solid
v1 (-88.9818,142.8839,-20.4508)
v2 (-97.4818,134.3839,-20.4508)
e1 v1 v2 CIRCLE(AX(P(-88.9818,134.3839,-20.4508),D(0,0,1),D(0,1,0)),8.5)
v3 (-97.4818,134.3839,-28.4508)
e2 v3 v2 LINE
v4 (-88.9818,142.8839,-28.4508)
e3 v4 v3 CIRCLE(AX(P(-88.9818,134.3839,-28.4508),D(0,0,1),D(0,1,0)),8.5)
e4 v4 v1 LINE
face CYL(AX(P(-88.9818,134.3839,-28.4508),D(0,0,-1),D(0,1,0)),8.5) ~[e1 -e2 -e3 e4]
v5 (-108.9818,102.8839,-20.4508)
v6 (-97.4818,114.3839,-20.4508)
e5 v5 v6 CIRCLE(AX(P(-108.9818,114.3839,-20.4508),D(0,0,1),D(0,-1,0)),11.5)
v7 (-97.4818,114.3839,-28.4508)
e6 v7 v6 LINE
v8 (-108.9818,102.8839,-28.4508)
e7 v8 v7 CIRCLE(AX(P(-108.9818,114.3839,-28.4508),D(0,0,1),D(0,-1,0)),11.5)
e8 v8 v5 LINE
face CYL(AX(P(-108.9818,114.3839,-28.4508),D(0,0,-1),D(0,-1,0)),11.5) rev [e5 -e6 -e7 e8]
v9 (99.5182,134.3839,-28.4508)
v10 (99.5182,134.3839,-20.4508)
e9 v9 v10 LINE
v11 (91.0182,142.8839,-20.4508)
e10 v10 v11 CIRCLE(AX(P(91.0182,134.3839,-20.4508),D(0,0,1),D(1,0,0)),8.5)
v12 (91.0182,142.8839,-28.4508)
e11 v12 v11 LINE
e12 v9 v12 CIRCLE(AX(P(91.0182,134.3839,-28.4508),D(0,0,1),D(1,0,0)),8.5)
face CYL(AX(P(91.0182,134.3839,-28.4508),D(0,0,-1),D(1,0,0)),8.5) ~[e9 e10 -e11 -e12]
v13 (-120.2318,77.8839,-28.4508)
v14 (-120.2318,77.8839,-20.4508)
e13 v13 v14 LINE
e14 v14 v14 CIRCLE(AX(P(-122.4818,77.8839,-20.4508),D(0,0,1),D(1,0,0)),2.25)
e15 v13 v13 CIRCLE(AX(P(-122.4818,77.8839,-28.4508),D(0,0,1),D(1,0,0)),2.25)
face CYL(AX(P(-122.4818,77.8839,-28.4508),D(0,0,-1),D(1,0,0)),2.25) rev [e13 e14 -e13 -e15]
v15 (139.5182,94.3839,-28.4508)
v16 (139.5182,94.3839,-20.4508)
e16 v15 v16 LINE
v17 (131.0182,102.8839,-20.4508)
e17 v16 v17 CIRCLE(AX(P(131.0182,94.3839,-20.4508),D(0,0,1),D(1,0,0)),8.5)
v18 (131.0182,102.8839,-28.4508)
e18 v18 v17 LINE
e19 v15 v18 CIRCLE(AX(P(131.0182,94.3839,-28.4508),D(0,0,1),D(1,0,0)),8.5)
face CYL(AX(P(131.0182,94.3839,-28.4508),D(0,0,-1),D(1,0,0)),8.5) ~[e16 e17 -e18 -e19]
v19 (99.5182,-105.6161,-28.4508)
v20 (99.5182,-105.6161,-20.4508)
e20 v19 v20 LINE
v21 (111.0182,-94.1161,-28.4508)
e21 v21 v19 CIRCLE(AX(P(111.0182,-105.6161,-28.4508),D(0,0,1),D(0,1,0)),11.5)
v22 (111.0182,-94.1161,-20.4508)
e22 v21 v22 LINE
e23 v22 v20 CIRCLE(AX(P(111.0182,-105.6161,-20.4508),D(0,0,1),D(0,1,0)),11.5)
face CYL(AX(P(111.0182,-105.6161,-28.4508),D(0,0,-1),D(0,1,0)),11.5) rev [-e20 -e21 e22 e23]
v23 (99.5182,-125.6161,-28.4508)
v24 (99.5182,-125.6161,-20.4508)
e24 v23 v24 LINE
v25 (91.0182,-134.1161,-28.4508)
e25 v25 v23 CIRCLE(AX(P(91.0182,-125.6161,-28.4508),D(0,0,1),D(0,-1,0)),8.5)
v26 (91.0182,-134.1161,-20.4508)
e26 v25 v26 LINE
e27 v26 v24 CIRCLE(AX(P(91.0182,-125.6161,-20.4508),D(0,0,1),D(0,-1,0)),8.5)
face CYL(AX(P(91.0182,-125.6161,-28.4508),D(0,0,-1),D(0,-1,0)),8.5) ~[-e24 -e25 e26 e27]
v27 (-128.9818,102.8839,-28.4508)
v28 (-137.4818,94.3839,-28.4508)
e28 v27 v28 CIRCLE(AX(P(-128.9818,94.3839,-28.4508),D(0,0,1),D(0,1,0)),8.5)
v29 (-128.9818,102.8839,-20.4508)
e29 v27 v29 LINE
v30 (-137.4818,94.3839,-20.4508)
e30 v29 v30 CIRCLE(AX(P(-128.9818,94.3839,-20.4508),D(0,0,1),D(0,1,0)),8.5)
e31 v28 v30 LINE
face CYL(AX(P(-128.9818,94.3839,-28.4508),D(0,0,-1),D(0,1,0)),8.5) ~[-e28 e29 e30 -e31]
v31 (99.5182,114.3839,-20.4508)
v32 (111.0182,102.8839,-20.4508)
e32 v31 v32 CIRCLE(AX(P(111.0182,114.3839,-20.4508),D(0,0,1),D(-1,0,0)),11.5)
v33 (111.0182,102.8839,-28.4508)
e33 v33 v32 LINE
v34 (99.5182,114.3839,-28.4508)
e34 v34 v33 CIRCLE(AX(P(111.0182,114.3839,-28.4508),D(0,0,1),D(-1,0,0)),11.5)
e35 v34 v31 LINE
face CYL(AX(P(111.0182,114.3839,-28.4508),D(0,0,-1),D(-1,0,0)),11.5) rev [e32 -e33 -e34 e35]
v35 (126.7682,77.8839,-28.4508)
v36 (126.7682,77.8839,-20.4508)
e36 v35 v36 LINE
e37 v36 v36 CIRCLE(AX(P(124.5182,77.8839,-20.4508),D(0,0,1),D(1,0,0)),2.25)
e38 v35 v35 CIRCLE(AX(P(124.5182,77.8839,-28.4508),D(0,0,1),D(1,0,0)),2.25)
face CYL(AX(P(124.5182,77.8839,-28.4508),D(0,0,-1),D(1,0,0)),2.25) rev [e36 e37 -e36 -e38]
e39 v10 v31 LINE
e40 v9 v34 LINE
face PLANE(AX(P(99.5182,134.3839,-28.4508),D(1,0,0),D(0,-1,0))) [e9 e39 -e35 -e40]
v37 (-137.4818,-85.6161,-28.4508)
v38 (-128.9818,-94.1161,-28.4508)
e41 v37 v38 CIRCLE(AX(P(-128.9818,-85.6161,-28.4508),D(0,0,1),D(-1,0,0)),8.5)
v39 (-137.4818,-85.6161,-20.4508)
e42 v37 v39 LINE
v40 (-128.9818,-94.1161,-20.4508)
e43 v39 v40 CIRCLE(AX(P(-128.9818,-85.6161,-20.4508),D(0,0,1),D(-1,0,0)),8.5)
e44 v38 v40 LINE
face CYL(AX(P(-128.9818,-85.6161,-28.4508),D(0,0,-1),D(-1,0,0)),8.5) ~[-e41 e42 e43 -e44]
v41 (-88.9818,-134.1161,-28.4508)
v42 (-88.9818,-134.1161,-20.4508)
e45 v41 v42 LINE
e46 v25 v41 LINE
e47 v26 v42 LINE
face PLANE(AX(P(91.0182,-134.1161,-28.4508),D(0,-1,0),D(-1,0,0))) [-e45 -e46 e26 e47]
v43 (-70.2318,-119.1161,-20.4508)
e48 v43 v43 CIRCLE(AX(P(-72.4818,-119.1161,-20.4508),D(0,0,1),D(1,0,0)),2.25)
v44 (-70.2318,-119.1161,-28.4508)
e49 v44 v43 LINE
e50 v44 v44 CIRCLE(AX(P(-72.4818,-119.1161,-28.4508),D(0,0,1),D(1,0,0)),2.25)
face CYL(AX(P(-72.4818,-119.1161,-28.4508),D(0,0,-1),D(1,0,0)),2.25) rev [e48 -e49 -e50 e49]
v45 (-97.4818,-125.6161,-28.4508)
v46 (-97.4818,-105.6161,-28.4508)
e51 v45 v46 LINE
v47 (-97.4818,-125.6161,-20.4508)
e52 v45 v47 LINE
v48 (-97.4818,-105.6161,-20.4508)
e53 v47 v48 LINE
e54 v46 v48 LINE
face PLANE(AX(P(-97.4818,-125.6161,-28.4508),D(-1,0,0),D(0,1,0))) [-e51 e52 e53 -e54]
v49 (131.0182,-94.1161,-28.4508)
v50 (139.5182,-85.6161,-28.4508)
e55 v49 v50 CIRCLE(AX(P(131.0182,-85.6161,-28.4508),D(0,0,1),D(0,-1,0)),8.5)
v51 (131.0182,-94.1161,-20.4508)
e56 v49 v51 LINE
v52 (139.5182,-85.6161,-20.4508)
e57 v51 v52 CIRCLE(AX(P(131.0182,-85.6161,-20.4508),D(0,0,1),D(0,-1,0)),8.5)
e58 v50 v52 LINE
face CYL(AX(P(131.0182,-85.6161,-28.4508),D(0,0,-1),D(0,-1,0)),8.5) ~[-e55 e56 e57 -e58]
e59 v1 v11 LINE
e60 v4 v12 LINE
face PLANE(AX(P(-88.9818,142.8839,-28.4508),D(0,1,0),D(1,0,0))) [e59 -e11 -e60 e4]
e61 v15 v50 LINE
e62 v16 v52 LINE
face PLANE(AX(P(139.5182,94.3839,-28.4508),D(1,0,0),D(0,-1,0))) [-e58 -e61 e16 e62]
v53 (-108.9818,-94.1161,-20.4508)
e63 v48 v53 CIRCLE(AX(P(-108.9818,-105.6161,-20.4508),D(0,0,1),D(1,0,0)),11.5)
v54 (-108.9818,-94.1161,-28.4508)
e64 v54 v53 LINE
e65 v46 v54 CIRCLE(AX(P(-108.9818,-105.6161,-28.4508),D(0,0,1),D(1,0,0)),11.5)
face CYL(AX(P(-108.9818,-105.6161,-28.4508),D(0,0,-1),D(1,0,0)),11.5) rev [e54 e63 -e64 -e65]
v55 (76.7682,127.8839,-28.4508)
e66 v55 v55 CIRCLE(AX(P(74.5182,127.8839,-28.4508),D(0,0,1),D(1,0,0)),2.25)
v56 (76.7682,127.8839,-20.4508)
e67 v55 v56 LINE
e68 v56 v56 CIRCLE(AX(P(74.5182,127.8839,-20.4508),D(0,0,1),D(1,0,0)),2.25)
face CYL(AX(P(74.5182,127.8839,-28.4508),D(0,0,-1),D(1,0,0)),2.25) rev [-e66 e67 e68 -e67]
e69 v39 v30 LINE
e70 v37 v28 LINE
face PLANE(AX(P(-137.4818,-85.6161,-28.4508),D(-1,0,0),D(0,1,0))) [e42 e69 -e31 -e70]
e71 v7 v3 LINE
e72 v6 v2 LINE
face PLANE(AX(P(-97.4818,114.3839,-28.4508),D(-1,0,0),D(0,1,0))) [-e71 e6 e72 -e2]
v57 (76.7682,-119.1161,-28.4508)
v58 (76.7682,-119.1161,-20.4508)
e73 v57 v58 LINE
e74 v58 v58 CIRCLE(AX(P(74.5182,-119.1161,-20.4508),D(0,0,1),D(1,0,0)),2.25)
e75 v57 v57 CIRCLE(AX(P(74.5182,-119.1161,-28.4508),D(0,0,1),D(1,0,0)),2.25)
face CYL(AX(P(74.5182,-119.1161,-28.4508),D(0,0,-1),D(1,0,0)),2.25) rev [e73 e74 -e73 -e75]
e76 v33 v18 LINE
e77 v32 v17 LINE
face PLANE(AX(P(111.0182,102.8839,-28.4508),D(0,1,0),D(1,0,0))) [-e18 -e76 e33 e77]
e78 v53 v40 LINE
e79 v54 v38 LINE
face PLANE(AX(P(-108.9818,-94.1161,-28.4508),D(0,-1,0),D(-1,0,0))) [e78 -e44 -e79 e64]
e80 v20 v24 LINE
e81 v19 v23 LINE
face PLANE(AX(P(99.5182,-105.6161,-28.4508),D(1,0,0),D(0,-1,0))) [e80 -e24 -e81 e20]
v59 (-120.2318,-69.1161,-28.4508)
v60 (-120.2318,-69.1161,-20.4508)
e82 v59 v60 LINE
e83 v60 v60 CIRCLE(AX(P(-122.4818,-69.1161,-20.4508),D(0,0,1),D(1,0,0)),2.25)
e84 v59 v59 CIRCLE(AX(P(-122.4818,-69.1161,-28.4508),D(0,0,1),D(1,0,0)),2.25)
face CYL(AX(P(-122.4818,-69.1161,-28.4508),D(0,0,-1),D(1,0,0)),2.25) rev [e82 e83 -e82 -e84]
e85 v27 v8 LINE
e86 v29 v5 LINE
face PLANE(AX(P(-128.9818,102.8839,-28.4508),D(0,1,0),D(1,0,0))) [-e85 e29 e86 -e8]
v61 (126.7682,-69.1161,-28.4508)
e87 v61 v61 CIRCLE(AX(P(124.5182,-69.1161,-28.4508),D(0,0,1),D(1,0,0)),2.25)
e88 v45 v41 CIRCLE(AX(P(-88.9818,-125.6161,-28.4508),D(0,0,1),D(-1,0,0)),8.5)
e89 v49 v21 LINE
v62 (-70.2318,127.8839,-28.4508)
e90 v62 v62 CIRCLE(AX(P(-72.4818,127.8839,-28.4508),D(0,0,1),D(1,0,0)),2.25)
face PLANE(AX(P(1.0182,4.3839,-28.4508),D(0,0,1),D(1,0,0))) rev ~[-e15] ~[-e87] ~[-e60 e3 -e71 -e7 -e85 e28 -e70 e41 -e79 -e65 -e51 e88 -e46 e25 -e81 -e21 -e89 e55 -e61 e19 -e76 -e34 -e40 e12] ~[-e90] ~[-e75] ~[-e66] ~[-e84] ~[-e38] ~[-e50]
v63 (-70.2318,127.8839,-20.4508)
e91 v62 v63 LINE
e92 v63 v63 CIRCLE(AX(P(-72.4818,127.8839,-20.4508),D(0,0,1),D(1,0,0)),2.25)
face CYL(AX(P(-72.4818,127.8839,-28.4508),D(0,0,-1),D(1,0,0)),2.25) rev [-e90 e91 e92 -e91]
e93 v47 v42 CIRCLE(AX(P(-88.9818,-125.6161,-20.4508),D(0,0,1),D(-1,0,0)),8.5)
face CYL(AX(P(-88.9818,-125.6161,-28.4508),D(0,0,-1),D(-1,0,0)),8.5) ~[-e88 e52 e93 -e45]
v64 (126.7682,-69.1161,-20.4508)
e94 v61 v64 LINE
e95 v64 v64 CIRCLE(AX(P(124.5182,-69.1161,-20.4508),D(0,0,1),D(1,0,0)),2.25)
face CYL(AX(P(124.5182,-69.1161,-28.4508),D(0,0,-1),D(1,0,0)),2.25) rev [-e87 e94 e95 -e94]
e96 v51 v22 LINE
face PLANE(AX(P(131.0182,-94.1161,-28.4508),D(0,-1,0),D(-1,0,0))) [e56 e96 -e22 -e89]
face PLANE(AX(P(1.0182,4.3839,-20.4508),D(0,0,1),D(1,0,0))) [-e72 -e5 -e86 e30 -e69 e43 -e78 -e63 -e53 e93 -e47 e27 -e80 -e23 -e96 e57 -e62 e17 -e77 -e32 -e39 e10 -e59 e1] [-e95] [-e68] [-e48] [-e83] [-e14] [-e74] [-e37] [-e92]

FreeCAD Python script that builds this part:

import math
import FreeCAD as App
import Part
import Sketcher

V = App.Vector
Q = App.Units.Quantity

doc = App.newDocument("Part")
body = doc.addObject("PartDesign::Body", "Body")

# Sketch on XY plane
sketch1 = doc.addObject("Sketcher::SketchObject", "Sketch")
body.addObject(sketch1)
sketch1.AttachmentSupport = (doc.XY_Plane, [""])
sketch1.MapMode = "FlatFace"
sketch1.AttachmentOffset = App.Placement(V(0, 0, -28.4508), App.Rotation())
sketch1.addGeometry(Part.LineSegment(V(99.5, 114.4, 0), V(99.5, 134.4, 0)), False)
sketch1.addGeometry(Part.ArcOfCircle(Part.Circle(V(91, 134.4, 0), V(0, 0, 1), 8.5), math.radians(0), math.radians(90)), False)
sketch1.addGeometry(Part.LineSegment(V(91, 142.9, 0), V(-89, 142.9, 0)), False)
sketch1.addGeometry(Part.ArcOfCircle(Part.Circle(V(-89, 134.4, 0), V(0, 0, 1), 8.5), math.radians(90), math.radians(180)), False)
sketch1.addGeometry(Part.LineSegment(V(-97.5, 134.4, 0), V(-97.5, 114.4, 0)), False)
sketch1.addGeometry(Part.ArcOfCircle(Part.Circle(V(-109, 114.4, 0), V(0, 0, 1), 11.5), math.radians(-90), math.radians(0)), False)
sketch1.addGeometry(Part.LineSegment(V(-109, 102.9, 0), V(-129, 102.9, 0)), False)
sketch1.addGeometry(Part.ArcOfCircle(Part.Circle(V(-129, 94.4, 0), V(0, 0, 1), 8.5), math.radians(90), math.radians(180)), False)
sketch1.addGeometry(Part.LineSegment(V(-137.5, 94.4, 0), V(-137.5, -85.6, 0)), False)
sketch1.addGeometry(Part.ArcOfCircle(Part.Circle(V(-129, -85.6, 0), V(0, 0, 1), 8.5), math.radians(180), math.radians(270)), False)
sketch1.addGeometry(Part.LineSegment(V(-129, -94.1, 0), V(-109, -94.1, 0)), False)
sketch1.addGeometry(Part.ArcOfCircle(Part.Circle(V(-109, -105.6, 0), V(0, 0, 1), 11.5), math.radians(0), math.radians(90)), False)
sketch1.addGeometry(Part.LineSegment(V(-97.5, -105.6, 0), V(-97.5, -125.6, 0)), False)
sketch1.addGeometry(Part.ArcOfCircle(Part.Circle(V(-89, -125.6, 0), V(0, 0, 1), 8.5), math.radians(180), math.radians(270)), False)
sketch1.addGeometry(Part.LineSegment(V(-89, -134.1, 0), V(91, -134.1, 0)), False)
sketch1.addGeometry(Part.ArcOfCircle(Part.Circle(V(91, -125.6, 0), V(0, 0, 1), 8.5), math.radians(-90), math.radians(0)), False)
sketch1.addGeometry(Part.LineSegment(V(99.5, -125.6, 0), V(99.5, -105.6, 0)), False)
sketch1.addGeometry(Part.ArcOfCircle(Part.Circle(V(111, -105.6, 0), V(0, 0, 1), 11.5), math.radians(90), math.radians(180)), False)
sketch1.addGeometry(Part.LineSegment(V(111, -94.1, 0), V(131, -94.1, 0)), False)
sketch1.addGeometry(Part.ArcOfCircle(Part.Circle(V(131, -85.6, 0), V(0, 0, 1), 8.5), math.radians(-90), math.radians(0)), False)
sketch1.addGeometry(Part.LineSegment(V(139.5, -85.6, 0), V(139.5, 94.4, 0)), False)
sketch1.addGeometry(Part.ArcOfCircle(Part.Circle(V(131, 94.4, 0), V(0, 0, 1), 8.5), math.radians(0), math.radians(90)), False)
sketch1.addGeometry(Part.LineSegment(V(131, 102.9, 0), V(111, 102.9, 0)), False)
sketch1.addGeometry(Part.ArcOfCircle(Part.Circle(V(111, 114.4, 0), V(0, 0, 1), 11.5), math.radians(180), math.radians(270)), False)
sketch1.addGeometry(Part.Circle(V(-72.5, -119.1, 0), V(0, 0, 1), 2.2), False)
sketch1.addGeometry(Part.Circle(V(-122.5, -69.1, 0), V(0, 0, 1), 2.2), False)
sketch1.addGeometry(Part.Circle(V(74.5, -119.1, 0), V(0, 0, 1), 2.2), False)
sketch1.addGeometry(Part.Circle(V(124.5, -69.1, 0), V(0, 0, 1), 2.2), False)
sketch1.addGeometry(Part.Circle(V(-122.5, 77.9, 0), V(0, 0, 1), 2.2), False)
sketch1.addGeometry(Part.Circle(V(-72.5, 127.9, 0), V(0, 0, 1), 2.2), False)
sketch1.addGeometry(Part.Circle(V(124.5, 77.9, 0), V(0, 0, 1), 2.2), False)
sketch1.addGeometry(Part.Circle(V(74.5, 127.9, 0), V(0, 0, 1), 2.2), False)
sketch1.addConstraint(Sketcher.Constraint("Tangent", 0, 2, 1, 1))
sketch1.addConstraint(Sketcher.Constraint("Tangent", 1, 2, 2, 1))
sketch1.addConstraint(Sketcher.Constraint("Tangent", 2, 2, 3, 1))
sketch1.addConstraint(Sketcher.Constraint("Tangent", 3, 2, 4, 1))
sketch1.addConstraint(Sketcher.Constraint("Tangent", 4, 2, 5, 2))
sketch1.addConstraint(Sketcher.Constraint("Tangent", 5, 1, 6, 1))
sketch1.addConstraint(Sketcher.Constraint("Tangent", 6, 2, 7, 1))
sketch1.addConstraint(Sketcher.Constraint("Tangent", 7, 2, 8, 1))
sketch1.addConstraint(Sketcher.Constraint("Tangent", 8, 2, 9, 1))
sketch1.addConstraint(Sketcher.Constraint("Tangent", 9, 2, 10, 1))
sketch1.addConstraint(Sketcher.Constraint("Tangent", 10, 2, 11, 2))
sketch1.addConstraint(Sketcher.Constraint("Tangent", 11, 1, 12, 1))
sketch1.addConstraint(Sketcher.Constraint("Tangent", 12, 2, 13, 1))
sketch1.addConstraint(Sketcher.Constraint("Tangent", 13, 2, 14, 1))
sketch1.addConstraint(Sketcher.Constraint("Tangent", 14, 2, 15, 1))
sketch1.addConstraint(Sketcher.Constraint("Tangent", 15, 2, 16, 1))
sketch1.addConstraint(Sketcher.Constraint("Tangent", 16, 2, 17, 2))
sketch1.addConstraint(Sketcher.Constraint("Tangent", 17, 1, 18, 1))
sketch1.addConstraint(Sketcher.Constraint("Tangent", 18, 2, 19, 1))
sketch1.addConstraint(Sketcher.Constraint("Tangent", 19, 2, 20, 1))
sketch1.addConstraint(Sketcher.Constraint("Tangent", 20, 2, 21, 1))
sketch1.addConstraint(Sketcher.Constraint("Tangent", 21, 2, 22, 1))
sketch1.addConstraint(Sketcher.Constraint("Tangent", 22, 2, 23, 2))
sketch1.addConstraint(Sketcher.Constraint("Tangent", 23, 1, 0, 1))
sketch1.addConstraint(Sketcher.Constraint("Vertical", 0))
sketch1.addConstraint(Sketcher.Constraint("Horizontal", 2))
sketch1.addConstraint(Sketcher.Constraint("Vertical", 4))
sketch1.addConstraint(Sketcher.Constraint("Horizontal", 6))
sketch1.addConstraint(Sketcher.Constraint("Vertical", 8))
sketch1.addConstraint(Sketcher.Constraint("Horizontal", 10))
sketch1.addConstraint(Sketcher.Constraint("Vertical", 12))
sketch1.addConstraint(Sketcher.Constraint("Horizontal", 14))
sketch1.addConstraint(Sketcher.Constraint("Vertical", 16))
sketch1.addConstraint(Sketcher.Constraint("Horizontal", 18))
sketch1.addConstraint(Sketcher.Constraint("Vertical", 20))
sketch1.addConstraint(Sketcher.Constraint("Horizontal", 22))
sketch1.addConstraint(Sketcher.Constraint("Equal", 1, 3))
sketch1.addConstraint(Sketcher.Constraint("Equal", 3, 7))
sketch1.addConstraint(Sketcher.Constraint("Equal", 7, 9))
sketch1.addConstraint(Sketcher.Constraint("Equal", 5, 11))
sketch1.addConstraint(Sketcher.Constraint("Equal", 9, 13))
sketch1.addConstraint(Sketcher.Constraint("Equal", 13, 15))
sketch1.addConstraint(Sketcher.Constraint("Equal", 11, 17))
sketch1.addConstraint(Sketcher.Constraint("Equal", 15, 19))
sketch1.addConstraint(Sketcher.Constraint("Equal", 19, 21))
sketch1.addConstraint(Sketcher.Constraint("Equal", 17, 23))
sketch1.addConstraint(Sketcher.Constraint("Equal", 24, 25))
sketch1.addConstraint(Sketcher.Constraint("Equal", 25, 26))
sketch1.addConstraint(Sketcher.Constraint("Equal", 26, 27))
sketch1.addConstraint(Sketcher.Constraint("Equal", 27, 28))
sketch1.addConstraint(Sketcher.Constraint("Equal", 28, 29))
sketch1.addConstraint(Sketcher.Constraint("Equal", 29, 30))
sketch1.addConstraint(Sketcher.Constraint("Equal", 30, 31))
sketch1.addConstraint(Sketcher.Constraint("Horizontal", 11, 3, 17, 3))
sketch1.addConstraint(Sketcher.Constraint("Horizontal", 7, 3, 21, 3))
sketch1.addConstraint(Sketcher.Constraint("Horizontal", 24, 3, 26, 3))
sketch1.addConstraint(Sketcher.Constraint("Horizontal", 25, 3, 27, 3))
sketch1.addConstraint(Sketcher.Constraint("Horizontal", 28, 3, 30, 3))
sketch1.addConstraint(Sketcher.Constraint("Horizontal", 29, 3, 31, 3))
sketch1.addConstraint(Sketcher.Constraint("Vertical", 5, 3, 11, 3))
sketch1.addConstraint(Sketcher.Constraint("Vertical", 1, 3, 15, 3))
sketch1.addConstraint(Sketcher.Constraint("Vertical", 25, 3, 28, 3))
sketch1.addConstraint(Sketcher.Constraint("Vertical", 24, 3, 29, 3))
sketch1.addConstraint(Sketcher.Constraint("Vertical", 27, 3, 30, 3))
sketch1.addConstraint(Sketcher.Constraint("Vertical", 26, 3, 31, 3))
sketch1.addConstraint(Sketcher.Constraint("Equal", 10, 18))
sketch1.addConstraint(Sketcher.Constraint("Equal", 22, 0))
sketch1.addConstraint(Sketcher.Constraint("Equal", 14, 8))
sketch1.addConstraint(Sketcher.Constraint("Equal", 4, 12))
sketch1.addConstraint(Sketcher.Constraint("Diameter", 24, Q("4.5 mm")))
sketch1.addConstraint(Sketcher.Constraint("DistanceX", 31, 3, 0, 2, Q("25 mm")))
sketch1.addConstraint(Sketcher.Constraint("DistanceX", 0, 2, 30, 3, Q("25 mm")))
sketch1.addConstraint(Sketcher.Constraint("DistanceY", 31, 3, 1, 2, Q("15 mm")))
sketch1.addConstraint(Sketcher.Constraint("DistanceX", 3, 2, 29, 3, Q("25 mm")))
sketch1.addConstraint(Sketcher.Constraint("DistanceY", 28, 3, 5, 1, Q("25 mm")))
sketch1.addConstraint(Sketcher.Constraint("DistanceX", 7, 2, 28, 3, Q("15 mm")))
sketch1.addConstraint(Sketcher.Constraint("DistanceY", 9, 2, 25, 3, Q("25 mm")))
sketch1.addConstraint(Sketcher.Constraint("DistanceY", 13, 2, 24, 3, Q("15 mm")))
sketch1.addConstraint(Sketcher.Constraint("DistanceX", 27, 3, 19, 2, Q("15 mm")))
sketch1.addConstraint(Sketcher.Constraint("Radius", 1, Q("8.5 mm")))
sketch1.addConstraint(Sketcher.Constraint("Radius", 5, Q("11.5 mm")))
sketch1.addConstraint(Sketcher.Constraint("DistanceX", 2, 2, 2, 1, Q("180 mm")))
sketch1.addConstraint(Sketcher.Constraint("DistanceY", -1, 1, 1, 3, Q("134.384 mm")))
sketch1.addConstraint(Sketcher.Constraint("DistanceX", -1, 1, 1, 3, Q("91.0182 mm")))
pad1 = doc.addObject("PartDesign::Pad", "Pad")
body.addObject(pad1)
pad1.Profile = sketch1
pad1.Length = 8

doc.recompute()
